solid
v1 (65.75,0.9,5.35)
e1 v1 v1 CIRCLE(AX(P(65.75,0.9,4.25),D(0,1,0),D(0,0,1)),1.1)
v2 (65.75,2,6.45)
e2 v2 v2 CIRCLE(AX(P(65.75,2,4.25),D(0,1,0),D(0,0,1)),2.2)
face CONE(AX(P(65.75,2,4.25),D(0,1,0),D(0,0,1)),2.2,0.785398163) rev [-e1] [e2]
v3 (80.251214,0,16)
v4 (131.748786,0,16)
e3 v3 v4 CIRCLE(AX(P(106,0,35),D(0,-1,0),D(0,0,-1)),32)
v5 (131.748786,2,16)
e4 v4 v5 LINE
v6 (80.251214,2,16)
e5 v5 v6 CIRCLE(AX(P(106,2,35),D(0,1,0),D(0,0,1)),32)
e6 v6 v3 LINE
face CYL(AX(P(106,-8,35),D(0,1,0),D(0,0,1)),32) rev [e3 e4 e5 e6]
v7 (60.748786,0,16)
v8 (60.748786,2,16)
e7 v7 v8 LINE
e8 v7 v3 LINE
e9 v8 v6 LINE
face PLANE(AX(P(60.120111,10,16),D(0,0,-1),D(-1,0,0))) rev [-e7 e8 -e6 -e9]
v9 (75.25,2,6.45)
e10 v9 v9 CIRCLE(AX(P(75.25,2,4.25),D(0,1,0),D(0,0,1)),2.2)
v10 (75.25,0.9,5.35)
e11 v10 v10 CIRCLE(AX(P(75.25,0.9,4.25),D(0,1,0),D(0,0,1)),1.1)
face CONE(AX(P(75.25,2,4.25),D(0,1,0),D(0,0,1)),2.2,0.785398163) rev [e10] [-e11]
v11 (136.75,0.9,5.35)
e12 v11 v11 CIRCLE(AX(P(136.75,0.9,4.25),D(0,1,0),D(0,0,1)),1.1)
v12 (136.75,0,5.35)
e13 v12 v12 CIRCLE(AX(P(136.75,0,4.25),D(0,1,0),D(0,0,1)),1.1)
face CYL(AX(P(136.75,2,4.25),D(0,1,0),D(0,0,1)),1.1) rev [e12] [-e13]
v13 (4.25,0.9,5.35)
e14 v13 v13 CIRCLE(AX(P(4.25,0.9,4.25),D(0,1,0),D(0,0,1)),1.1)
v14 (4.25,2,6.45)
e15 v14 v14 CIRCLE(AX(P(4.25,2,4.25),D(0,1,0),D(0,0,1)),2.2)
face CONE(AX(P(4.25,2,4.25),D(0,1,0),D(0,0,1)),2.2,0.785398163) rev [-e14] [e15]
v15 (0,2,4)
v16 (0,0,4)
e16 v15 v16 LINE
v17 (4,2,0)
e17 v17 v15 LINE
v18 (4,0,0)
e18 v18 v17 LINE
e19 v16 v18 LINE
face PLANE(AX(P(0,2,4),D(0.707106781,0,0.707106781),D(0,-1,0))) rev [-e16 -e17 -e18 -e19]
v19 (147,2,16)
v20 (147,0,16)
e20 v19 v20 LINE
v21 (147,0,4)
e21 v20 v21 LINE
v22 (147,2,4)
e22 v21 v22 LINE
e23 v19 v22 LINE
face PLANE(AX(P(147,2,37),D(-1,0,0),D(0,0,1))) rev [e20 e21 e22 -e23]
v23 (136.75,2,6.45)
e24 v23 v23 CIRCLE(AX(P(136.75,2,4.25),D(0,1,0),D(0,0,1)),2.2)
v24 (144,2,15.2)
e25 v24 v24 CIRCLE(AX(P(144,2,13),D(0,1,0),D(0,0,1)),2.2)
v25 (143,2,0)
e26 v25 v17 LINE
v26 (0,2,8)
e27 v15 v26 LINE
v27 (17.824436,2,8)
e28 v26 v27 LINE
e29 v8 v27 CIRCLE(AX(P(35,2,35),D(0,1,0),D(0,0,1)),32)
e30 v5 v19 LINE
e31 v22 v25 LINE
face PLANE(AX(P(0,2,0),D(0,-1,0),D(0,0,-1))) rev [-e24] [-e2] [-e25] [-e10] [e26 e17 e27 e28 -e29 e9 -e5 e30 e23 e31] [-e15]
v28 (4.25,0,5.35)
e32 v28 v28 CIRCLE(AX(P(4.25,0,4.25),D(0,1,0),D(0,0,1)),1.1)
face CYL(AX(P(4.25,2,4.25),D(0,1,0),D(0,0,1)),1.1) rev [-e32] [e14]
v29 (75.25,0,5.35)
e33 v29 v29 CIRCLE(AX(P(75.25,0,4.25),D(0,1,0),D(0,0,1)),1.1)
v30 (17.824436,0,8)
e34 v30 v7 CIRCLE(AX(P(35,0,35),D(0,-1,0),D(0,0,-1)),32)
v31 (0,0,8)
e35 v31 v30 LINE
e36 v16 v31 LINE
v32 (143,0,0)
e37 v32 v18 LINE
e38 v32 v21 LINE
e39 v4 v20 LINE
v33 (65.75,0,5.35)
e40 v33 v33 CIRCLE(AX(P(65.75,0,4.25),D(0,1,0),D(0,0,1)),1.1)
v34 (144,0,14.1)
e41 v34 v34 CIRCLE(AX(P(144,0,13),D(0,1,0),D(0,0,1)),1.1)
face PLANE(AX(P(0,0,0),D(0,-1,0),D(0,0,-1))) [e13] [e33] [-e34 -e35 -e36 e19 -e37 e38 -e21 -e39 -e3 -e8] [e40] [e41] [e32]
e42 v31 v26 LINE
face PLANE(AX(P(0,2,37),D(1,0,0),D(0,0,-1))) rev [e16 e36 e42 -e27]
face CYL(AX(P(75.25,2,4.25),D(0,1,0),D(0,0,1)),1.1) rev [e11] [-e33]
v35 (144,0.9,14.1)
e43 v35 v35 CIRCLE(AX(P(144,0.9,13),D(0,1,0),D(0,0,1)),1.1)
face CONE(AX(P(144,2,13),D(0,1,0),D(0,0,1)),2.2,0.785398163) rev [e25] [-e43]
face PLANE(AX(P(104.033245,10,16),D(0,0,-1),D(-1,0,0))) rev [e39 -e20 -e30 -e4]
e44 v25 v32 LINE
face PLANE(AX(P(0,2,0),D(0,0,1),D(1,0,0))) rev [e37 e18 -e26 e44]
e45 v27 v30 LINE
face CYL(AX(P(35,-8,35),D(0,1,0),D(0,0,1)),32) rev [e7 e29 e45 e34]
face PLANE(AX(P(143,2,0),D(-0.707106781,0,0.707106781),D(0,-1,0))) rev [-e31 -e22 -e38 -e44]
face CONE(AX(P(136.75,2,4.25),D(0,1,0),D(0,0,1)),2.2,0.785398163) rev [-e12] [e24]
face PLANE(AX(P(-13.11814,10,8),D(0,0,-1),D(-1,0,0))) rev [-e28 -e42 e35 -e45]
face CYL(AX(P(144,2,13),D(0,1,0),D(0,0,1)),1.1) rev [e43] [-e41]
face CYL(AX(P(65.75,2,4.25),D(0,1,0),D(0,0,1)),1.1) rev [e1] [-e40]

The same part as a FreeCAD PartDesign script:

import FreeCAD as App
import Part
import Sketcher

V = App.Vector
Q = App.Units.Quantity


def edges_at(feature, points):
    """Names of the edges that pass closest to the given points."""
    edges = feature.Shape.Edges
    near = lambda p: min(range(len(edges)), key=lambda i: edges[i].distToShape(Part.Vertex(*p))[0])
    return sorted({f"Edge{near(p) + 1}" for p in points})

doc = App.newDocument("Part")
body = doc.addObject("PartDesign::Body", "Body")

# Sketch on XZ plane
sketch1 = doc.addObject("Sketcher::SketchObject", "Sketch")
body.addObject(sketch1)
sketch1.AttachmentSupport = (doc.XZ_Plane, [""])
sketch1.MapMode = "FlatFace"
sketch1.addGeometry([
    Part.LineSegment(V(0, 0, 0), V(0, 37, 0)),
    Part.LineSegment(V(0, 37, 0), V(147, 37, 0)),
    Part.LineSegment(V(147, 37, 0), V(147, 0, 0)),
    Part.LineSegment(V(147, 0, 0), V(0, 0, 0)),
], False)
sketch1.addConstraint([
    Sketcher.Constraint("Coincident", 0, 2, 1, 1),
    Sketcher.Constraint("Coincident", 1, 2, 2, 1),
    Sketcher.Constraint("Coincident", 2, 2, 3, 1),
    Sketcher.Constraint("Coincident", 3, 2, 0, 1),
    Sketcher.Constraint("Vertical", 0),
    Sketcher.Constraint("Horizontal", 1),
    Sketcher.Constraint("Vertical", 2),
    Sketcher.Constraint("Horizontal", 3),
    Sketcher.Constraint("Coincident", 3, 2, -1, 1),
    Sketcher.Constraint("DistanceX", 1, 1, 1, 2, 147.0),
    Sketcher.Constraint("DistanceY", 0, 1, 0, 2, 37.0),
])
pad1 = doc.addObject("PartDesign::Pad", "Pad")
body.addObject(pad1)
pad1.Profile = sketch1
pad1.Length = 2
pad1.Reversed = True

# Sketch on XZ plane
sketch2 = doc.addObject("Sketcher::SketchObject", "Sketch001")
body.addObject(sketch2)
sketch2.AttachmentSupport = (doc.XZ_Plane, [""])
sketch2.MapMode = "FlatFace"
sketch2.AttachmentOffset = App.Placement(V(0, 0, -2), App.Rotation())
sketch2.addGeometry(Part.Circle(V(144, 13, 0), V(0, 0, 1), 1), False)
sketch2.addConstraint([
    Sketcher.Constraint("Diameter", 0, 2.0),
    Sketcher.Constraint("DistanceX", -1, 1, 0, 3, 144.0),
    Sketcher.Constraint("DistanceY", -1, 1, 0, 3, 13.0),
])
pocket1 = doc.addObject("PartDesign::Pocket", "Pocket")
body.addObject(pocket1)
pocket1.Profile = sketch2
pocket1.Length = 2
pocket1.Reversed = True

# Sketch on XZ plane
sketch3 = doc.addObject("Sketcher::SketchObject", "Sketch002")
body.addObject(sketch3)
sketch3.AttachmentSupport = (doc.XZ_Plane, [""])
sketch3.MapMode = "FlatFace"
sketch3.AttachmentOffset = App.Placement(V(0, 0, -2), App.Rotation())
sketch3.addGeometry([
    Part.Circle(V(75.2, 4.2, 0), V(0, 0, 1), 1),  # 0
    Part.Circle(V(136.8, 4.2, 0), V(0, 0, 1), 1),  # 1
    Part.Circle(V(106, 35, 0), V(0, 0, 1), 32),  # 2
    Part.Circle(V(4.2, 4.2, 0), V(0, 0, 1), 1),  # 3
    Part.Circle(V(65.8, 4.2, 0), V(0, 0, 1), 1),  # 4
    Part.Circle(V(35, 35, 0), V(0, 0, 1), 32),  # 5
], False)
sketch3.addConstraint([
    Sketcher.Constraint("Equal", 0, 1),
    Sketcher.Constraint("Equal", 1, 3),
    Sketcher.Constraint("Equal", 3, 4),
    Sketcher.Constraint("Equal", 2, 5),
    Sketcher.Constraint("Horizontal", 0, 3, 1, 3),
    Sketcher.Constraint("Horizontal", 1, 3, 3, 3),
    Sketcher.Constraint("Horizontal", 3, 3, 4, 3),
    Sketcher.Constraint("Horizontal", 2, 3, 5, 3),
    Sketcher.Constraint("Diameter", 0, 2.0),
    Sketcher.Constraint("Diameter", 2, 64.0),
    Sketcher.Constraint("DistanceX", -1, 1, 2, 3, 106.0),
    Sketcher.Constraint("DistanceY", -1, 1, 2, 3, 35.0),
    Sketcher.Constraint("DistanceX", -1, 1, 5, 3, 35.0),
    Sketcher.Constraint("DistanceX", 3, 3, 0, 3, 71.0),
    Sketcher.Constraint("DistanceX", 4, 3, 1, 3, 71.0),
    Sketcher.Constraint("DistanceX", 0, 3, 1, 3, 61.5),
    Sketcher.Constraint("DistanceX", -1, 1, 0, 3, 75.25),
    Sketcher.Constraint("DistanceY", -1, 1, 0, 3, 4.25),
])
pocket2 = doc.addObject("PartDesign::Pocket", "Pocket001")
body.addObject(pocket2)
pocket2.Profile = sketch3
pocket2.Length = 10
pocket2.Reversed = True
doc.recompute()

chamfer = doc.addObject("PartDesign::Chamfer", "Chamfer")
body.addObject(chamfer)
chamfer.Base = (pocket2, edges_at(pocket2, [(0, 1, 0), (147, 1, 0)]))
chamfer.Size = 4

# Sketch on XZ plane
sketch4 = doc.addObject("Sketcher::SketchObject", "Sketch003")
body.addObject(sketch4)
sketch4.AttachmentSupport = (doc.XZ_Plane, [""])
sketch4.MapMode = "FlatFace"
sketch4.addGeometry([
    Part.LineSegment(V(32, 8, 0), V(32, 43, 0)),  # 0
    Part.LineSegment(V(32, 43, 0), V(-13, 43, 0)),  # 1
    Part.LineSegment(V(-13, 43, 0), V(-13, 8, 0)),  # 2
    Part.LineSegment(V(-13, 8, 0), V(32, 8, 0)),  # 3
    Part.LineSegment(V(157, 16, 0), V(157, 51, 0)),  # 4
    Part.LineSegment(V(157, 51, 0), V(104, 51, 0)),  # 5
    Part.LineSegment(V(104, 51, 0), V(104, 16, 0)),  # 6
    Part.LineSegment(V(104, 16, 0), V(157, 16, 0)),  # 7
    Part.LineSegment(V(85, 16, 0), V(85, 40, 0)),  # 8
    Part.LineSegment(V(85, 40, 0), V(60, 40, 0)),  # 9
    Part.LineSegment(V(60, 40, 0), V(60, 16, 0)),  # 10
    Part.LineSegment(V(60, 16, 0), V(85, 16, 0)),  # 11
], False)
sketch4.addConstraint([
    Sketcher.Constraint("Coincident", 0, 2, 1, 1),
    Sketcher.Constraint("Coincident", 1, 2, 2, 1),
    Sketcher.Constraint("Coincident", 2, 2, 3, 1),
    Sketcher.Constraint("Coincident", 3, 2, 0, 1),
    Sketcher.Constraint("Coincident", 4, 2, 5, 1),
    Sketcher.Constraint("Coincident", 5, 2, 6, 1),
    Sketcher.Constraint("Coincident", 6, 2, 7, 1),
    Sketcher.Constraint("Coincident", 7, 2, 4, 1),
    Sketcher.Constraint("Coincident", 8, 2, 9, 1),
    Sketcher.Constraint("Coincident", 9, 2, 10, 1),
    Sketcher.Constraint("Coincident", 10, 2, 11, 1),
    Sketcher.Constraint("Coincident", 11, 2, 8, 1),
    Sketcher.Constraint("Vertical", 0),
    Sketcher.Constraint("Horizontal", 1),
    Sketcher.Constraint("Vertical", 2),
    Sketcher.Constraint("Horizontal", 3),
    Sketcher.Constraint("Vertical", 4),
    Sketcher.Constraint("Horizontal", 5),
    Sketcher.Constraint("Vertical", 6),
    Sketcher.Constraint("Horizontal", 7),
    Sketcher.Constraint("Vertical", 8),
    Sketcher.Constraint("Horizontal", 9),
    Sketcher.Constraint("Vertical", 10),
    Sketcher.Constraint("Horizontal", 11),
    Sketcher.Constraint("Horizontal", 7, 2, 10, 2),
    Sketcher.Constraint("Equal", 2, 4),
    Sketcher.Constraint("DistanceY", -1, 1, 2, 2, 8.0),
    Sketcher.Constraint("DistanceY", -1, 1, 6, 2, 16.0),
    Sketcher.Constraint("DistanceX", 1, 2, 1, 1, 44.721111),
    Sketcher.Constraint("DistanceX", 9, 2, 9, 1, 25.346192),
    Sketcher.Constraint("DistanceX", 5, 2, 5, 1, 53.357785),
    Sketcher.Constraint("DistanceY", 0, 1, 0, 2, 34.816534),
    Sketcher.Constraint("DistanceY", 8, 1, 8, 2, 23.882815),
    Sketcher.Constraint("DistanceX", -1, 1, 0, 2, 31.60297),
    Sketcher.Constraint("DistanceX", -1, 1, 4, 2, 157.39103),
    Sketcher.Constraint("DistanceX", -1, 1, 9, 2, 60.120111),
])
pocket3 = doc.addObject("PartDesign::Pocket", "Pocket002")
body.addObject(pocket3)
pocket3.Profile = sketch4
pocket3.Length = 10

# Sketch on YZ plane
sketch5 = doc.addObject("Sketcher::SketchObject", "Sketch004")
body.addObject(sketch5)
sketch5.AttachmentSupport = (doc.YZ_Plane, [""])
sketch5.MapMode = "FlatFace"
sketch5.AttachmentOffset = App.Placement(V(0, 0, 4.25), App.Rotation())
sketch5.addGeometry([
    Part.LineSegment(V(0, 4.2, 0), V(2, 4.2, 0)),  # 0
    Part.LineSegment(V(2, 4.2, 0), V(2, 6.5, 0)),  # 1
    Part.LineSegment(V(2, 6.5, 0), V(0.9, 5.3, 0)),  # 2
    Part.LineSegment(V(0.9, 5.3, 0), V(0, 5.3, 0)),  # 3
    Part.LineSegment(V(0, 5.3, 0), V(0, 4.2, 0)),  # 4
], False)
sketch5.addGeometry(Part.LineSegment(V(2, 4.2, 0), V(0, 4.2, 0)), True)  # axis
sketch5.addConstraint([
    Sketcher.Constraint("Coincident", 0, 2, 1, 1),
    Sketcher.Constraint("Coincident", 1, 2, 2, 1),
    Sketcher.Constraint("Coincident", 2, 2, 3, 1),
    Sketcher.Constraint("Coincident", 3, 2, 4, 1),
    Sketcher.Constraint("Coincident", 4, 2, 0, 1),
    Sketcher.Constraint("Horizontal", 0),
    Sketcher.Constraint("Vertical", 1),
    Sketcher.Constraint("Horizontal", 3),
    Sketcher.Constraint("Vertical", 4),
    Sketcher.Constraint("Horizontal", 5),
    Sketcher.Constraint("Coincident", 5, 1, 0, 2),
    Sketcher.Constraint("PointOnObject", 3, 2, -2),
    Sketcher.Constraint("PointOnObject", 5, 2, -2),
    Sketcher.Constraint("DistanceX", 0, 1, 0, 2, 2.0),
    Sketcher.Constraint("Angle", 2, Q("-135 deg")),
    Sketcher.Constraint("DistanceX", 3, 2, 3, 1, 0.9),
    Sketcher.Constraint("DistanceY", 1, 1, 1, 2, 2.2),
    Sketcher.Constraint("DistanceY", -1, 1, 0, 2, 4.25),
])
groove = doc.addObject("PartDesign::Groove", "Groove")
body.addObject(groove)
groove.Profile = sketch5
groove.ReferenceAxis = (sketch5, ["Axis0"])
groove.Angle = 360
doc.recompute()

linearpattern = doc.addObject("PartDesign::LinearPattern", "LinearPattern")
body.addObject(linearpattern)
linearpattern.Originals = [groove]
linearpattern.Direction = (doc.X_Axis, [""])
linearpattern.Mode = "offset"
linearpattern.Offset = 61.5
linearpattern.Occurrences = 2
body.Tip = linearpattern
doc.recompute()

linearpattern2 = doc.addObject("PartDesign::LinearPattern", "LinearPattern001")
body.addObject(linearpattern2)
linearpattern2.Originals = [groove]
linearpattern2.Direction = (doc.X_Axis, [""])
linearpattern2.Mode = "offset"
linearpattern2.Offset = 71
linearpattern2.Occurrences = 2
body.Tip = linearpattern2
doc.recompute()

linearpattern3 = doc.addObject("PartDesign::LinearPattern", "LinearPattern002")
body.addObject(linearpattern3)
linearpattern3.Originals = [groove]
linearpattern3.Direction = (doc.X_Axis, [""])
linearpattern3.Mode = "offset"
linearpattern3.Offset = 132.5
linearpattern3.Occurrences = 2
body.Tip = linearpattern3
doc.recompute()

datumline = doc.addObject("PartDesign::Line", "DatumLine")
body.addObject(datumline)
datumline.Placement = App.Placement(V(0, 0, 0), App.Rotation(V(0, 0, 1), V(0.998045625, 0, 0.06248944)))
linearpattern4 = doc.addObject("PartDesign::LinearPattern", "LinearPattern003")
body.addObject(linearpattern4)
linearpattern4.Originals = [groove]
linearpattern4.Direction = (datumline, [""])
linearpattern4.Mode = "offset"
linearpattern4.Offset = 140.023659
linearpattern4.Occurrences = 2
body.Tip = linearpattern4

doc.recompute()
